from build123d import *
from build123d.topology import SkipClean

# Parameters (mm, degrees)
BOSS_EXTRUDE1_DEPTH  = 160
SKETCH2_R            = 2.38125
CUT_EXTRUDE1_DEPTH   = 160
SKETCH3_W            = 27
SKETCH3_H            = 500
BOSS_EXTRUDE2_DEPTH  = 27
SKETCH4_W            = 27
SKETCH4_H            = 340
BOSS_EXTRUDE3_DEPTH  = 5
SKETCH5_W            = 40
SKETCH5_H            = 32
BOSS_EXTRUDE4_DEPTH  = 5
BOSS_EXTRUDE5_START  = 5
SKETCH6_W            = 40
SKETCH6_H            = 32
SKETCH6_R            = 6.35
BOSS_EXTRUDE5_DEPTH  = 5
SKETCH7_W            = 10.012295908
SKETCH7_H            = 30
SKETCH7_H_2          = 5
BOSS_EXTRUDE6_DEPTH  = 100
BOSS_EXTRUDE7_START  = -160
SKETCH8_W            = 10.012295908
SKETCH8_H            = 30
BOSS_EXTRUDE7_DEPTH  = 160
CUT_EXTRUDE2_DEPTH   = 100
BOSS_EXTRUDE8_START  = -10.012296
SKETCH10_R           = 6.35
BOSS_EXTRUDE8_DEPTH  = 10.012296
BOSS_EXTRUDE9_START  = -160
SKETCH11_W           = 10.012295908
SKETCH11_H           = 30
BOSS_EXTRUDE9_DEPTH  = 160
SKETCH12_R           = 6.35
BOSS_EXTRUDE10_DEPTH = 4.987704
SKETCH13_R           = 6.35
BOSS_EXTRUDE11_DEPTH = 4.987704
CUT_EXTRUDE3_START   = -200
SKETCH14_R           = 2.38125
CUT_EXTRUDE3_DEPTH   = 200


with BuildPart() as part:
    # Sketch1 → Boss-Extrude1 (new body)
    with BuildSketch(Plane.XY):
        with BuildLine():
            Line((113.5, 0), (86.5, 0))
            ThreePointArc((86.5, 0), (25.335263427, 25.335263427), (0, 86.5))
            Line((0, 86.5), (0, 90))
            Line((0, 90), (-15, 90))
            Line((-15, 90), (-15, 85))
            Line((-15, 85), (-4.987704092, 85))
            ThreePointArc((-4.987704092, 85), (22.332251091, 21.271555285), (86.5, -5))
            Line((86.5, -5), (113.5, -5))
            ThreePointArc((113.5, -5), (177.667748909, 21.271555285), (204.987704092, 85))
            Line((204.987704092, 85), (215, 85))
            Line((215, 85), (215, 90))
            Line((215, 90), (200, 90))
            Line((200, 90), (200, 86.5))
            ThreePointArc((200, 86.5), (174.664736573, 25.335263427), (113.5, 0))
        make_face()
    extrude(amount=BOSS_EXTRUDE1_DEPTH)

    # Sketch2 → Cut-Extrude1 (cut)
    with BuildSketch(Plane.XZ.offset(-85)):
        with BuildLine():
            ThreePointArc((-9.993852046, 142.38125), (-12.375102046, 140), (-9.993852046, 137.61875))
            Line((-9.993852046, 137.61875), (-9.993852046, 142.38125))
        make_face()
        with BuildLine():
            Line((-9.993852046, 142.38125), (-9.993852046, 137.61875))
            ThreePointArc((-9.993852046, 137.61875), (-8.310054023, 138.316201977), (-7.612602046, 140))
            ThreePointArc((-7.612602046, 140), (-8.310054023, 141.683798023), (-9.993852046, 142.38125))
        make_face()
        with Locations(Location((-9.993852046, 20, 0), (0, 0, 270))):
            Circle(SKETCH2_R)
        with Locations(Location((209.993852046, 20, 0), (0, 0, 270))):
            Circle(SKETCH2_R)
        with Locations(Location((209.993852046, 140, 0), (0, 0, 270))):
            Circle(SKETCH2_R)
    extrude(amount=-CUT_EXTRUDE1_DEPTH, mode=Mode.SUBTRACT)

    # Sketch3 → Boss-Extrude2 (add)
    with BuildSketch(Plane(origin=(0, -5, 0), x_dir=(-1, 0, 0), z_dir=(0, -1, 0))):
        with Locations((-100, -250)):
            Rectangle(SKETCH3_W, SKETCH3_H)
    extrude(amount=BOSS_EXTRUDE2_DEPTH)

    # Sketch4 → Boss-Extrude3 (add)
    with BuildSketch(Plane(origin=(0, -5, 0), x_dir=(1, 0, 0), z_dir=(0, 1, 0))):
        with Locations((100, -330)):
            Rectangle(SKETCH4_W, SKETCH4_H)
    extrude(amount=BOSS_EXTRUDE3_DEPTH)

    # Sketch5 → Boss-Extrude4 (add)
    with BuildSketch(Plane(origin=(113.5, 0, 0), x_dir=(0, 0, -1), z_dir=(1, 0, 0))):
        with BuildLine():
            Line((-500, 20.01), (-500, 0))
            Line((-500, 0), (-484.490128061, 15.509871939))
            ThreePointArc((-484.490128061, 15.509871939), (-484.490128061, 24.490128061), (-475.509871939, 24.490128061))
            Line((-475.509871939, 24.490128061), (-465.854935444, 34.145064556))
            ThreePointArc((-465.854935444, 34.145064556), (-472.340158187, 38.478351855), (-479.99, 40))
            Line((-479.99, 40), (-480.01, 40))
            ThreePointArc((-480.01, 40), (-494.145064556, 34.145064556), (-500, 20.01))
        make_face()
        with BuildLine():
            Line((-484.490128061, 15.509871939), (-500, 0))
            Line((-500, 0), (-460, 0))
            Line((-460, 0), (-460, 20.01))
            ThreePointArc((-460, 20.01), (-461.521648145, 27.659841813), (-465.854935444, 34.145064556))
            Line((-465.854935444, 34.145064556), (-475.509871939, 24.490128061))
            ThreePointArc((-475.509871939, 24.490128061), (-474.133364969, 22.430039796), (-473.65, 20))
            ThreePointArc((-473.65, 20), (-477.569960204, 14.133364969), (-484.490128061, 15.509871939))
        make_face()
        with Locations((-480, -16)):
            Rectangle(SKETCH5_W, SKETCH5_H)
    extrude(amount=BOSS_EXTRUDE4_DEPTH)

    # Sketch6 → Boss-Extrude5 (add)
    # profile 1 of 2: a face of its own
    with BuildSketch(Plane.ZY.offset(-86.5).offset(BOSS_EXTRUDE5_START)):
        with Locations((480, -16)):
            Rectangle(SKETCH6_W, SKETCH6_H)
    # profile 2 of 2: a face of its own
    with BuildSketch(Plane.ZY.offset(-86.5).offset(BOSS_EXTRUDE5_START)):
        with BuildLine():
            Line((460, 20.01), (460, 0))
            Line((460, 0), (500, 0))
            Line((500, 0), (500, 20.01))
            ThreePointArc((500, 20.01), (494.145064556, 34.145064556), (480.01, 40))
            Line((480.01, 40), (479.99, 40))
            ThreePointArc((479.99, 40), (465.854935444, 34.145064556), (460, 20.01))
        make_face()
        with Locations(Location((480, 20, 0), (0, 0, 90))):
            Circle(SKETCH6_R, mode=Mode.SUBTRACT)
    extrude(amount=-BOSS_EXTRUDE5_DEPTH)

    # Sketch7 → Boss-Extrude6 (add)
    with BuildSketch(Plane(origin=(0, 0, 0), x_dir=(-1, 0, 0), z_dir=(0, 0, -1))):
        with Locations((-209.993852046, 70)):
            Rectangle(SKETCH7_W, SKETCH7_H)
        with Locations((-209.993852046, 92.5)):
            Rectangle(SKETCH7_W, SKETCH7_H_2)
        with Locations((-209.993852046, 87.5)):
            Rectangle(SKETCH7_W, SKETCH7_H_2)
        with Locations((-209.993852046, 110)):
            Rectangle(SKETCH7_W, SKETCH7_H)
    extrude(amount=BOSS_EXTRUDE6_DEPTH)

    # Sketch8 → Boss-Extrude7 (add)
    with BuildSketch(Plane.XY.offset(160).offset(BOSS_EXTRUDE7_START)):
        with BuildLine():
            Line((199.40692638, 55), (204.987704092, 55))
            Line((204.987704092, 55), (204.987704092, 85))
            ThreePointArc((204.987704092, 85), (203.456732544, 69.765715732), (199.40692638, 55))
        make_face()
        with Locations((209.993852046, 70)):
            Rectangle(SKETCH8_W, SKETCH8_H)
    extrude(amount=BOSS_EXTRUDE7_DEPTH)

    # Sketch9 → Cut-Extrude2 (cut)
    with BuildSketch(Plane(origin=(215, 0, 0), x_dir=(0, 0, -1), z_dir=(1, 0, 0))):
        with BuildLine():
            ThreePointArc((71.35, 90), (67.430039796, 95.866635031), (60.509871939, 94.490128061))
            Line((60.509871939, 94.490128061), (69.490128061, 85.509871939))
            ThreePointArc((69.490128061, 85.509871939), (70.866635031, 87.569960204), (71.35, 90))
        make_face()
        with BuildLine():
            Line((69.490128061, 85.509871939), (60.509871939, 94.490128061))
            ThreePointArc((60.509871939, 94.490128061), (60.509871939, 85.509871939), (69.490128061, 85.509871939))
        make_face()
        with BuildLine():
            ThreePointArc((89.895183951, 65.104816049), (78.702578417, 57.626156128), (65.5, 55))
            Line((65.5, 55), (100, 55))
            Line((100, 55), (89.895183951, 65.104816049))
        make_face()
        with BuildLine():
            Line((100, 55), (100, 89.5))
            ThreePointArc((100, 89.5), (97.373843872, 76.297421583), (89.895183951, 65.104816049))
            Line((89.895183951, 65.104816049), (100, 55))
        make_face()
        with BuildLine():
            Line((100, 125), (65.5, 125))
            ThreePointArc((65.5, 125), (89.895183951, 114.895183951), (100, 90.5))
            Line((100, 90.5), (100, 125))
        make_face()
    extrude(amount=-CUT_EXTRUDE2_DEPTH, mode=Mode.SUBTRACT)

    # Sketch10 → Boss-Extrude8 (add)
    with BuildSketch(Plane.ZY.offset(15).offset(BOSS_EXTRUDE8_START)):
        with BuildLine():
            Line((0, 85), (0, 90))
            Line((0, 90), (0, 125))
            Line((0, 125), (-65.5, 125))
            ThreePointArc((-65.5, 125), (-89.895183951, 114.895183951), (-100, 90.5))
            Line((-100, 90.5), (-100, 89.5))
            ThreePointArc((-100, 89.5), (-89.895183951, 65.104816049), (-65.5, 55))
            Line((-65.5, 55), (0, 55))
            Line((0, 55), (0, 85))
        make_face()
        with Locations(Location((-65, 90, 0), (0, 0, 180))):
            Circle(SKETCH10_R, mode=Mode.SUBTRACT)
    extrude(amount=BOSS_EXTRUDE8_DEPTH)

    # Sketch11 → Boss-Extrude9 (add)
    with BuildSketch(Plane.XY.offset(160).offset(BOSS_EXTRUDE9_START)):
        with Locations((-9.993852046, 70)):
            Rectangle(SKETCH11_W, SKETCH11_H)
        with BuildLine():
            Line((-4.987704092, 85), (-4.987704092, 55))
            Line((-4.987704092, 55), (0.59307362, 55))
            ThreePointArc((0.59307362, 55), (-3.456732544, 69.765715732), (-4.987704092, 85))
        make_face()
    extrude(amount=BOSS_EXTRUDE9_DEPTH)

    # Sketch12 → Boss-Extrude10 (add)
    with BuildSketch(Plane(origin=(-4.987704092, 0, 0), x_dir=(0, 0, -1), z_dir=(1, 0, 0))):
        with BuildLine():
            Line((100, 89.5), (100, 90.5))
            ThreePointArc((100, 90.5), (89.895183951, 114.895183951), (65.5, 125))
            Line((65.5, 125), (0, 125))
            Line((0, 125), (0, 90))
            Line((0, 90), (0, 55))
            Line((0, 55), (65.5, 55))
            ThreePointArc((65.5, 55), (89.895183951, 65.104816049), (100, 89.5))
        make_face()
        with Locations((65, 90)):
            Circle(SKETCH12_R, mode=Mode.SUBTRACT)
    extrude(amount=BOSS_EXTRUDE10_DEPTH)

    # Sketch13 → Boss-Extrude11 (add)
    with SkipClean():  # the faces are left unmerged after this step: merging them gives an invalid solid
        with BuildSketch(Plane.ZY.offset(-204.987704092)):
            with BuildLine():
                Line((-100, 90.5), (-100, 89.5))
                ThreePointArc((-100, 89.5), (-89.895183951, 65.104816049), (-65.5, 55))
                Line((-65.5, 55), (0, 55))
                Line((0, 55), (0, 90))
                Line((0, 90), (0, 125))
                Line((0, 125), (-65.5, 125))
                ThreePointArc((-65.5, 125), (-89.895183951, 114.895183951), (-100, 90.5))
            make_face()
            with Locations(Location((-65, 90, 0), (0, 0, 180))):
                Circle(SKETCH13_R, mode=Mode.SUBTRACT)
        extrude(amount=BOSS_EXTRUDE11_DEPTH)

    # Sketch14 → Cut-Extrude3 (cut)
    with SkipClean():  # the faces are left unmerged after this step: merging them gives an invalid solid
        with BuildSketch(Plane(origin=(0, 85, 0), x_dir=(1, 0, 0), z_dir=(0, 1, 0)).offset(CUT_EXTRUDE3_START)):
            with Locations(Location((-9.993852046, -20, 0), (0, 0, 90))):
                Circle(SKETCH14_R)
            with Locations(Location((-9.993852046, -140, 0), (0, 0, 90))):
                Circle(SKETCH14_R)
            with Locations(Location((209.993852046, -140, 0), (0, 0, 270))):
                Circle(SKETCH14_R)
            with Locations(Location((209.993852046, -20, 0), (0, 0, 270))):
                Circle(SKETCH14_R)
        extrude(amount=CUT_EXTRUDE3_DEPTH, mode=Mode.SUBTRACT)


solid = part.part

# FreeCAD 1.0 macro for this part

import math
import FreeCAD as App
import Part
import Sketcher
from FreeCAD import Vector
Q = App.Units.Quantity

doc = App.newDocument("Part")
params = doc.addObject("Spreadsheet::Sheet", "Params")
for row, (alias, value) in enumerate([
    ("sketch1_radius", "86.5 mm"),
    ("sketch1_radius2", "91.5 mm"),
    ("sketch1_width", "27 mm"),
    ("sketch1_width2", "15 mm"),
    ("sketch1_height", "5 mm"),
    ("pad1_length", "160 mm"),
    ("pocket1_length", "160 mm"),
    ("sketch3_width", "27 mm"),
    ("sketch3_height", "500 mm"),
    ("pad2_length", "27 mm"),
    ("sketch4_width", "27 mm"),
    ("sketch4_height", "340 mm"),
    ("pad3_length", "5 mm"),
    ("sketch5_height", "40 mm"),
    ("sketch5_radius", "19.99 mm"),
    ("sketch5_radius2", "6.35 mm"),
    ("pad4_length", "5 mm"),
    ("sketch6_diameter", "12.7 mm"),
    ("sketch6_height", "40 mm"),
    ("sketch6_radius", "19.99 mm"),
    ("sketch6_height2", "0.02 mm"),
    ("pad5_length", "5 mm"),
    ("sketch7_height", "70 mm"),
    ("pad6_length", "100 mm"),
    ("sketch8_radius", "91.5 mm"),
    ("sketch8_height", "30 mm"),
    ("pad7_length", "160 mm"),
    ("sketch9_radius", "34.5 mm"),
    ("sketch9_radius2", "6.35 mm"),
    ("pocket2_length", "100 mm"),
    ("sketch10_diameter", "12.7 mm"),
    ("sketch10_radius", "34.5 mm"),
    ("sketch10_width", "1 mm"),
    ("sketch10_height", "65.5 mm"),
    ("pad8_length", "10.012296 mm"),
    ("sketch11_radius", "91.5 mm"),
    ("sketch11_height", "30 mm"),
    ("pad9_length", "160 mm"),
    ("sketch12_diameter", "12.7 mm"),
    ("sketch12_radius", "34.5 mm"),
    ("sketch12_width", "1 mm"),
    ("sketch12_height", "65.5 mm"),
    ("pad10_length", "4.987704 mm"),
    ("sketch13_diameter", "12.7 mm"),
    ("sketch13_radius", "34.5 mm"),
    ("sketch13_width", "1 mm"),
    ("sketch13_height", "65.5 mm"),
    ("pad11_length", "4.987704 mm"),
    ("pocket3_length", "200 mm"),
], start=1):
    params.set(f"A{row}", alias)
    params.set(f"B{row}", "=" + value)
    params.setAlias(f"B{row}", alias)

body = doc.addObject("PartDesign::Body", "Body")

# Sketch on XY plane
sketch1 = body.newObject("Sketcher::SketchObject", "Sketch")
sketch1.AttachmentSupport = (doc.getObject("XY_Plane"), [""])
sketch1.MapMode = "FlatFace"
sketch1.addGeometry(Part.LineSegment(Vector(113.5, 0, 0), Vector(86.5, 0, 0)), False)
sketch1.addGeometry(Part.ArcOfCircle(Part.Circle(Vector(86.5, 86.5, 0), Vector(0, 0, 1), 86.5), math.radians(180), math.radians(270)), False)
sketch1.addGeometry(Part.LineSegment(Vector(0, 86.5, 0), Vector(0, 90, 0)), False)
sketch1.addGeometry(Part.LineSegment(Vector(0, 90, 0), Vector(-15, 90, 0)), False)
sketch1.addGeometry(Part.LineSegment(Vector(-15, 90, 0), Vector(-15, 85, 0)), False)
sketch1.addGeometry(Part.LineSegment(Vector(-15, 85, 0), Vector(-4.987704, 85, 0)), False)
sketch1.addGeometry(Part.ArcOfCircle(Part.Circle(Vector(86.5, 86.5, 0), Vector(0, 0, 1), 91.5), math.radians(-179.060683), math.radians(-90)), False)
sketch1.addGeometry(Part.LineSegment(Vector(86.5, -5, 0), Vector(113.5, -5, 0)), False)
sketch1.addGeometry(Part.ArcOfCircle(Part.Circle(Vector(113.5, 86.5, 0), Vector(0, 0, 1), 91.5), math.radians(-90), math.radians(-0.939317)), False)
sketch1.addGeometry(Part.LineSegment(Vector(204.987704, 85, 0), Vector(215, 85, 0)), False)
sketch1.addGeometry(Part.LineSegment(Vector(215, 85, 0), Vector(215, 90, 0)), False)
sketch1.addGeometry(Part.LineSegment(Vector(215, 90, 0), Vector(200, 90, 0)), False)
sketch1.addGeometry(Part.LineSegment(Vector(200, 90, 0), Vector(200, 86.5, 0)), False)
sketch1.addGeometry(Part.ArcOfCircle(Part.Circle(Vector(113.5, 86.5, 0), Vector(0, 0, 1), 86.5), math.radians(-90), math.radians(0)), False)
sketch1.addConstraint(Sketcher.Constraint("Tangent", 0, 2, 1, 2))
sketch1.addConstraint(Sketcher.Constraint("Tangent", 1, 1, 2, 1))
sketch1.addConstraint(Sketcher.Constraint("Coincident", 2, 2, 3, 1))
sketch1.addConstraint(Sketcher.Constraint("Coincident", 3, 2, 4, 1))
sketch1.addConstraint(Sketcher.Constraint("Coincident", 4, 2, 5, 1))
sketch1.addConstraint(Sketcher.Constraint("Coincident", 5, 2, 6, 1))
sketch1.addConstraint(Sketcher.Constraint("Tangent", 6, 2, 7, 1))
sketch1.addConstraint(Sketcher.Constraint("Tangent", 7, 2, 8, 1))
sketch1.addConstraint(Sketcher.Constraint("Coincident", 8, 2, 9, 1))
sketch1.addConstraint(Sketcher.Constraint("Coincident", 9, 2, 10, 1))
sketch1.addConstraint(Sketcher.Constraint("Coincident", 10, 2, 11, 1))
sketch1.addConstraint(Sketcher.Constraint("Coincident", 11, 2, 12, 1))
sketch1.addConstraint(Sketcher.Constraint("Tangent", 12, 2, 13, 2))
sketch1.addConstraint(Sketcher.Constraint("Tangent", 13, 1, 0, 1))
sketch1.addConstraint(Sketcher.Constraint("Horizontal", 0))
sketch1.addConstraint(Sketcher.Constraint("Vertical", 2))
sketch1.addConstraint(Sketcher.Constraint("Horizontal", 3))
sketch1.addConstraint(Sketcher.Constraint("Vertical", 4))
sketch1.addConstraint(Sketcher.Constraint("Horizontal", 5))
sketch1.addConstraint(Sketcher.Constraint("Horizontal", 7))
sketch1.addConstraint(Sketcher.Constraint("Horizontal", 9))
sketch1.addConstraint(Sketcher.Constraint("Vertical", 10))
sketch1.addConstraint(Sketcher.Constraint("Horizontal", 11))
sketch1.addConstraint(Sketcher.Constraint("Vertical", 12))
sketch1.addConstraint(Sketcher.Constraint("Coincident", 6, 3, 1, 3))
sketch1.addConstraint(Sketcher.Constraint("Coincident", 13, 3, 8, 3))
sketch1.addConstraint(Sketcher.Constraint("Equal", 6, 8))
sketch1.addConstraint(Sketcher.Constraint("PointOnObject", 0, 2, -1))
sketch1.addConstraint(Sketcher.Constraint("PointOnObject", 1, 1, -2))
sketch1.addConstraint(Sketcher.Constraint("Horizontal", 5, 2, 8, 2))
sketch1.addConstraint(Sketcher.Constraint("Horizontal", 3, 2, 10, 2))
sketch1.addConstraint(Sketcher.Constraint("Equal", 5, 9))
sketch1.addConstraint(Sketcher.Constraint("Radius", 1, Q("86.5 mm")))
sketch1.addConstraint(Sketcher.Constraint("Radius", 6, Q("91.5 mm")))
sketch1.addConstraint(Sketcher.Constraint("DistanceX", 0, 2, 0, 1, Q("27 mm")))
sketch1.addConstraint(Sketcher.Constraint("DistanceX", 3, 2, 3, 1, Q("15 mm")))
sketch1.addConstraint(Sketcher.Constraint("DistanceY", 4, 2, 4, 1, Q("5 mm")))
sketch1.addConstraint(Sketcher.Constraint("DistanceY", 2, 1, 2, 2, Q("3.5 mm")))
sketch1.setExpression("Constraints[32]", "Params.sketch1_radius")
sketch1.setExpression("Constraints[33]", "Params.sketch1_radius2")
sketch1.setExpression("Constraints[34]", "Params.sketch1_width")
sketch1.setExpression("Constraints[35]", "Params.sketch1_width2")
sketch1.setExpression("Constraints[36]", "Params.sketch1_height")
pad1 = body.newObject("PartDesign::Pad", "Pad")
pad1.Profile = sketch1
pad1.setExpression("Length", "Params.pad1_length")

# Sketch on XZ plane
sketch2 = body.newObject("Sketcher::SketchObject", "Sketch001")
sketch2.AttachmentSupport = (doc.getObject("XZ_Plane"), [""])
sketch2.MapMode = "FlatFace"
sketch2.AttachmentOffset = App.Placement(Vector(0, 0, -85), App.Rotation())
sketch2.addGeometry(Part.ArcOfCircle(Part.Circle(Vector(-9.993852, 140, 0), Vector(0, 0, 1), 2.38125), math.radians(90), math.radians(270)), False)
sketch2.addGeometry(Part.ArcOfCircle(Part.Circle(Vector(-9.993852, 140, 0), Vector(0, 0, 1), 2.38125), math.radians(-90), math.radians(0)), False)
sketch2.addGeometry(Part.ArcOfCircle(Part.Circle(Vector(-9.993852, 140, 0), Vector(0, 0, 1), 2.38125), math.radians(0), math.radians(90)), False)
sketch2.addGeometry(Part.Circle(Vector(-9.993852, 20, 0), Vector(0, 0, 1), 2.38125), False)
sketch2.addGeometry(Part.Circle(Vector(209.993852, 20, 0), Vector(0, 0, 1), 2.38125), False)
sketch2.addGeometry(Part.Circle(Vector(209.993852, 140, 0), Vector(0, 0, 1), 2.38125), False)
sketch2.addConstraint(Sketcher.Constraint("Tangent", 0, 2, 1, 1))
sketch2.addConstraint(Sketcher.Constraint("Tangent", 1, 2, 2, 1))
sketch2.addConstraint(Sketcher.Constraint("Tangent", 2, 2, 0, 1))
sketch2.addConstraint(Sketcher.Constraint("Equal", 2, 3))
sketch2.addConstraint(Sketcher.Constraint("Equal", 3, 4))
sketch2.addConstraint(Sketcher.Constraint("Equal", 4, 5))
sketch2.addConstraint(Sketcher.Constraint("Horizontal", 3, 3, 4, 3))
sketch2.addConstraint(Sketcher.Constraint("Horizontal", 2, 3, 5, 3))
sketch2.addConstraint(Sketcher.Constraint("Horizontal", 5, 3, 1, 2))
sketch2.addConstraint(Sketcher.Constraint("Vertical", 2, 3, 3, 3))
sketch2.addConstraint(Sketcher.Constraint("Vertical", 4, 3, 5, 3))
sketch2.addConstraint(Sketcher.Constraint("Vertical", 3, 3, 0, 2))
sketch2.addConstraint(Sketcher.Constraint("Vertical", 0, 2, 2, 2))
sketch2.addConstraint(Sketcher.Constraint("DistanceY", -1, 1, 0, 3, Q("140 mm")))
sketch2.addConstraint(Sketcher.Constraint("DistanceY", -1, 1, 3, 3, Q("20 mm")))
sketch2.addConstraint(Sketcher.Constraint("Diameter", 3, Q("4.7625 mm")))
sketch2.addConstraint(Sketcher.Constraint("DistanceX", 0, 3, -1, 1, Q("9.993852 mm")))
sketch2.addConstraint(Sketcher.Constraint("DistanceX", -1, 1, 4, 3, Q("209.993852 mm")))
pocket1 = body.newObject("PartDesign::Pocket", "Pocket")
pocket1.Profile = sketch2
pocket1.setExpression("Length", "Params.pocket1_length")

# Sketch on XZ plane
sketch3 = body.newObject("Sketcher::SketchObject", "Sketch002")
sketch3.AttachmentSupport = (doc.getObject("XZ_Plane"), [""])
sketch3.MapMode = "FlatFace"
sketch3.AttachmentOffset = App.Placement(Vector(0, 0, 5), App.Rotation())
sketch3.addGeometry(Part.LineSegment(Vector(113.5, 0, 0), Vector(113.5, 500, 0)), False)
sketch3.addGeometry(Part.LineSegment(Vector(113.5, 500, 0), Vector(86.5, 500, 0)), False)
sketch3.addGeometry(Part.LineSegment(Vector(86.5, 500, 0), Vector(86.5, 0, 0)), False)
sketch3.addGeometry(Part.LineSegment(Vector(86.5, 0, 0), Vector(113.5, 0, 0)), False)
sketch3.addConstraint(Sketcher.Constraint("Coincident", 0, 2, 1, 1))
sketch3.addConstraint(Sketcher.Constraint("Coincident", 1, 2, 2, 1))
sketch3.addConstraint(Sketcher.Constraint("Coincident", 2, 2, 3, 1))
sketch3.addConstraint(Sketcher.Constraint("Coincident", 3, 2, 0, 1))
sketch3.addConstraint(Sketcher.Constraint("Vertical", 0))
sketch3.addConstraint(Sketcher.Constraint("Horizontal", 1))
sketch3.addConstraint(Sketcher.Constraint("Vertical", 2))
sketch3.addConstraint(Sketcher.Constraint("Horizontal", 3))
sketch3.addConstraint(Sketcher.Constraint("PointOnObject", 2, 2, -1))
sketch3.addConstraint(Sketcher.Constraint("DistanceX", 1, 2, 1, 1, Q("27 mm")))
sketch3.addConstraint(Sketcher.Constraint("DistanceY", 0, 1, 0, 2, Q("500 mm")))
sketch3.addConstraint(Sketcher.Constraint("DistanceX", -1, 1, 0, 2, Q("113.5 mm")))
sketch3.setExpression("Constraints[9]", "Params.sketch3_width")
sketch3.setExpression("Constraints[10]", "Params.sketch3_height")
pad2 = body.newObject("PartDesign::Pad", "Pad001")
pad2.Profile = sketch3
pad2.setExpression("Length", "Params.pad2_length")

# Sketch on XZ plane
sketch4 = body.newObject("Sketcher::SketchObject", "Sketch003")
sketch4.AttachmentSupport = (doc.getObject("XZ_Plane"), [""])
sketch4.MapMode = "FlatFace"
sketch4.AttachmentOffset = App.Placement(Vector(0, 0, 5), App.Rotation())
sketch4.addGeometry(Part.LineSegment(Vector(86.5, 160, 0), Vector(86.5, 500, 0)), False)
sketch4.addGeometry(Part.LineSegment(Vector(86.5, 500, 0), Vector(113.5, 500, 0)), False)
sketch4.addGeometry(Part.LineSegment(Vector(113.5, 500, 0), Vector(113.5, 160, 0)), False)
sketch4.addGeometry(Part.LineSegment(Vector(113.5, 160, 0), Vector(86.5, 160, 0)), False)
sketch4.addConstraint(Sketcher.Constraint("Coincident", 0, 2, 1, 1))
sketch4.addConstraint(Sketcher.Constraint("Coincident", 1, 2, 2, 1))
sketch4.addConstraint(Sketcher.Constraint("Coincident", 2, 2, 3, 1))
sketch4.addConstraint(Sketcher.Constraint("Coincident", 3, 2, 0, 1))
sketch4.addConstraint(Sketcher.Constraint("Vertical", 0))
sketch4.addConstraint(Sketcher.Constraint("Horizontal", 1))
sketch4.addConstraint(Sketcher.Constraint("Vertical", 2))
sketch4.addConstraint(Sketcher.Constraint("Horizontal", 3))
sketch4.addConstraint(Sketcher.Constraint("DistanceX", 1, 1, 1, 2, Q("27 mm")))
sketch4.addConstraint(Sketcher.Constraint("DistanceY", 0, 1, 0, 2, Q("340 mm")))
sketch4.addConstraint(Sketcher.Constraint("DistanceY", -1, 1, 0, 2, Q("500 mm")))
sketch4.addConstraint(Sketcher.Constraint("DistanceX", -1, 1, 0, 2, Q("86.5 mm")))
sketch4.setExpression("Constraints[8]", "Params.sketch4_width")
sketch4.setExpression("Constraints[9]", "Params.sketch4_height")
pad3 = body.newObject("PartDesign::Pad", "Pad002")
pad3.Profile = sketch4
pad3.setExpression("Length", "Params.pad3_length")
pad3.Reversed = True

# Sketch on YZ plane
sketch5 = body.newObject("Sketcher::SketchObject", "Sketch004")
sketch5.AttachmentSupport = (doc.getObject("YZ_Plane"), [""])
sketch5.MapMode = "FlatFace"
sketch5.AttachmentOffset = App.Placement(Vector(0, 0, 113.5), App.Rotation())
sketch5.addGeometry(Part.LineSegment(Vector(20.01, 500, 0), Vector(-32, 500, 0)), False)
sketch5.addGeometry(Part.LineSegment(Vector(-32, 500, 0), Vector(-32, 460, 0)), False)
sketch5.addGeometry(Part.LineSegment(Vector(-32, 460, 0), Vector(20.01, 460, 0)), False)
sketch5.addGeometry(Part.ArcOfCircle(Part.Circle(Vector(20.01, 479.99, 0), Vector(0, 0, 1), 19.99), math.radians(-90), math.radians(-45)), False)
sketch5.addGeometry(Part.ArcOfCircle(Part.Circle(Vector(20.01, 479.99, 0), Vector(0, 0, 1), 19.99), math.radians(-45), math.radians(0)), False)
sketch5.addGeometry(Part.LineSegment(Vector(40, 479.99, 0), Vector(40, 480.01, 0)), False)
sketch5.addGeometry(Part.ArcOfCircle(Part.Circle(Vector(20.01, 480.01, 0), Vector(0, 0, 1), 19.99), math.radians(0), math.radians(90)), False)
sketch5.addGeometry(Part.ArcOfCircle(Part.Circle(Vector(20, 480, 0), Vector(0, 0, 1), 6.35), math.radians(-45), math.radians(135)), False)
sketch5.addGeometry(Part.ArcOfCircle(Part.Circle(Vector(20, 480, 0), Vector(0, 0, 1), 6.35), math.radians(-90), math.radians(-45)), False)
sketch5.addGeometry(Part.ArcOfCircle(Part.Circle(Vector(20, 480, 0), Vector(0, 0, 1), 6.35), math.radians(135), math.radians(270)), False)
sketch5.addConstraint(Sketcher.Constraint("Coincident", 0, 2, 1, 1))
sketch5.addConstraint(Sketcher.Constraint("Coincident", 1, 2, 2, 1))
sketch5.addConstraint(Sketcher.Constraint("Tangent", 2, 2, 3, 1))
sketch5.addConstraint(Sketcher.Constraint("Tangent", 3, 2, 4, 1))
sketch5.addConstraint(Sketcher.Constraint("Tangent", 4, 2, 5, 1))
sketch5.addConstraint(Sketcher.Constraint("Coincident", 5, 2, 6, 1))
sketch5.addConstraint(Sketcher.Constraint("Tangent", 6, 2, 0, 1))
sketch5.addConstraint(Sketcher.Constraint("Tangent", 7, 1, 8, 2))
sketch5.addConstraint(Sketcher.Constraint("Tangent", 8, 1, 9, 2))
sketch5.addConstraint(Sketcher.Constraint("Tangent", 9, 1, 7, 2))
sketch5.addConstraint(Sketcher.Constraint("Horizontal", 0))
sketch5.addConstraint(Sketcher.Constraint("Vertical", 1))
sketch5.addConstraint(Sketcher.Constraint("Horizontal", 2))
sketch5.addConstraint(Sketcher.Constraint("Equal", 3, 4))
sketch5.addConstraint(Sketcher.Constraint("Equal", 4, 6))
sketch5.addConstraint(Sketcher.Constraint("Horizontal", 3, 3, 4, 2))
sketch5.addConstraint(Sketcher.Constraint("Horizontal", 6, 3, 5, 2))
sketch5.addConstraint(Sketcher.Constraint("Vertical", 9, 3, 8, 1))
sketch5.addConstraint(Sketcher.Constraint("DistanceY", 1, 2, 1, 1, Q("40 mm")))
sketch5.addConstraint(Sketcher.Constraint("Radius", 3, Q("19.99 mm")))
sketch5.addConstraint(Sketcher.Constraint("Radius", 7, Q("6.35 mm")))
sketch5.addConstraint(Sketcher.Constraint("DistanceX", -1, 1, 7, 3, Q("20 mm")))
sketch5.addConstraint(Sketcher.Constraint("DistanceY", -1, 1, 7, 3, Q("480 mm")))
sketch5.addConstraint(Sketcher.Constraint("DistanceX", 0, 2, -1, 1, Q("32 mm")))
sketch5.addConstraint(Sketcher.Constraint("DistanceY", -1, 1, 0, 2, Q("500 mm")))
sketch5.addConstraint(Sketcher.Constraint("DistanceX", -1, 1, 4, 2, Q("40 mm")))
sketch5.addConstraint(Sketcher.Constraint("DistanceX", -1, 1, 7, 1, Q("24.490128 mm")))
sketch5.addConstraint(Sketcher.Constraint("DistanceX", -1, 1, 9, 1, Q("15.509872 mm")))
sketch5.addConstraint(Sketcher.Constraint("DistanceX", -1, 1, 3, 2, Q("34.145065 mm")))
sketch5.setExpression("Constraints[18]", "Params.sketch5_height")
sketch5.setExpression("Constraints[19]", "Params.sketch5_radius")
sketch5.setExpression("Constraints[20]", "Params.sketch5_radius2")
pad4 = body.newObject("PartDesign::Pad", "Pad003")
pad4.Profile = sketch5
pad4.setExpression("Length", "Params.pad4_length")

# Sketch on YZ plane
sketch6 = body.newObject("Sketcher::SketchObject", "Sketch005")
sketch6.AttachmentSupport = (doc.getObject("YZ_Plane"), [""])
sketch6.MapMode = "FlatFace"
sketch6.AttachmentOffset = App.Placement(Vector(0, 0, 81.5), App.Rotation())
sketch6.addGeometry(Part.LineSegment(Vector(-32, 460, 0), Vector(-32, 500, 0)), False)
sketch6.addGeometry(Part.LineSegment(Vector(-32, 500, 0), Vector(20.01, 500, 0)), False)
sketch6.addGeometry(Part.ArcOfCircle(Part.Circle(Vector(20.01, 480.01, 0), Vector(0, 0, 1), 19.99), math.radians(0), math.radians(90)), False)
sketch6.addGeometry(Part.LineSegment(Vector(40, 480.01, 0), Vector(40, 479.99, 0)), False)
sketch6.addGeometry(Part.ArcOfCircle(Part.Circle(Vector(20.01, 479.99, 0), Vector(0, 0, 1), 19.99), math.radians(-90), math.radians(0)), False)
sketch6.addGeometry(Part.LineSegment(Vector(20.01, 460, 0), Vector(-32, 460, 0)), False)
sketch6.addGeometry(Part.Circle(Vector(20, 480, 0), Vector(0, 0, 1), 6.35), False)
sketch6.addConstraint(Sketcher.Constraint("Coincident", 0, 2, 1, 1))
sketch6.addConstraint(Sketcher.Constraint("Tangent", 1, 2, 2, 2))
sketch6.addConstraint(Sketcher.Constraint("Tangent", 2, 1, 3, 1))
sketch6.addConstraint(Sketcher.Constraint("Coincident", 3, 2, 4, 2))
sketch6.addConstraint(Sketcher.Constraint("Tangent", 4, 1, 5, 1))
sketch6.addConstraint(Sketcher.Constraint("Coincident", 5, 2, 0, 1))
sketch6.addConstraint(Sketcher.Constraint("Vertical", 0))
sketch6.addConstraint(Sketcher.Constraint("Horizontal", 1))
sketch6.addConstraint(Sketcher.Constraint("Horizontal", 5))
sketch6.addConstraint(Sketcher.Constraint("Equal", 2, 4))
sketch6.addConstraint(Sketcher.Constraint("Horizontal", 4, 3, 3, 2))
sketch6.addConstraint(Sketcher.Constraint("Diameter", 6, Q("12.7 mm")))
sketch6.addConstraint(Sketcher.Constraint("DistanceY", 0, 1, 0, 2, Q("40 mm")))
sketch6.addConstraint(Sketcher.Constraint("Radius", 2, Q("19.99 mm")))
sketch6.addConstraint(Sketcher.Constraint("DistanceX", -1, 1, 6, 3, Q("20 mm")))
sketch6.addConstraint(Sketcher.Constraint("DistanceY", -1, 1, 6, 3, Q("480 mm")))
sketch6.addConstraint(Sketcher.Constraint("DistanceX", 0, 2, -1, 1, Q("32 mm")))
sketch6.addConstraint(Sketcher.Constraint("DistanceY", -1, 1, 0, 2, Q("500 mm")))
sketch6.addConstraint(Sketcher.Constraint("DistanceX", -1, 1, 2, 1, Q("40 mm")))
sketch6.addConstraint(Sketcher.Constraint("DistanceY", 3, 2, 3, 1, Q("0.02 mm")))
sketch6.setExpression("Constraints[11]", "Params.sketch6_diameter")
sketch6.setExpression("Constraints[12]", "Params.sketch6_height")
sketch6.setExpression("Constraints[13]", "Params.sketch6_radius")
sketch6.setExpression("Constraints[19]", "Params.sketch6_height2")
pad5 = body.newObject("PartDesign::Pad", "Pad004")
pad5.Profile = sketch6
pad5.setExpression("Length", "Params.pad5_length")

# Sketch on XY plane
sketch7 = body.newObject("Sketcher::SketchObject", "Sketch006")
sketch7.AttachmentSupport = (doc.getObject("XY_Plane"), [""])
sketch7.MapMode = "FlatFace"
sketch7.addGeometry(Part.LineSegment(Vector(215, 55, 0), Vector(204.987704, 55, 0)), False)
sketch7.addGeometry(Part.LineSegment(Vector(204.987704, 55, 0), Vector(204.987704, 125, 0)), False)
sketch7.addGeometry(Part.LineSegment(Vector(204.987704, 125, 0), Vector(215, 125, 0)), False)
sketch7.addGeometry(Part.LineSegment(Vector(215, 125, 0), Vector(215, 55, 0)), False)
sketch7.addConstraint(Sketcher.Constraint("Coincident", 0, 2, 1, 1))
sketch7.addConstraint(Sketcher.Constraint("Coincident", 1, 2, 2, 1))
sketch7.addConstraint(Sketcher.Constraint("Coincident", 2, 2, 3, 1))
sketch7.addConstraint(Sketcher.Constraint("Coincident", 3, 2, 0, 1))
sketch7.addConstraint(Sketcher.Constraint("Horizontal", 0))
sketch7.addConstraint(Sketcher.Constraint("Vertical", 1))
sketch7.addConstraint(Sketcher.Constraint("Horizontal", 2))
sketch7.addConstraint(Sketcher.Constraint("Vertical", 3))
sketch7.addConstraint(Sketcher.Constraint("DistanceY", 1, 1, 1, 2, Q("70 mm")))
sketch7.addConstraint(Sketcher.Constraint("DistanceY", -1, 1, 0, 2, Q("55 mm")))
sketch7.addConstraint(Sketcher.Constraint("DistanceX", -1, 1, 2, 2, Q("215 mm")))
sketch7.addConstraint(Sketcher.Constraint("DistanceX", 0, 2, 0, 1, Q("10.012296 mm")))
sketch7.setExpression("Constraints[8]", "Params.sketch7_height")
pad6 = body.newObject("PartDesign::Pad", "Pad005")
pad6.Profile = sketch7
pad6.setExpression("Length", "Params.pad6_length")
pad6.Reversed = True

# Sketch on XY plane
sketch8 = body.newObject("Sketcher::SketchObject", "Sketch007")
sketch8.AttachmentSupport = (doc.getObject("XY_Plane"), [""])
sketch8.MapMode = "FlatFace"
sketch8.addGeometry(Part.LineSegment(Vector(199.406926, 55, 0), Vector(215, 55, 0)), False)
sketch8.addGeometry(Part.LineSegment(Vector(215, 55, 0), Vector(215, 85, 0)), False)
sketch8.addGeometry(Part.LineSegment(Vector(215, 85, 0), Vector(204.987704, 85, 0)), False)
sketch8.addGeometry(Part.ArcOfCircle(Part.Circle(Vector(113.5, 86.5, 0), Vector(0, 0, 1), 91.5), math.radians(-20.13677), math.radians(-0.939317)), False)
sketch8.addConstraint(Sketcher.Constraint("Coincident", 0, 2, 1, 1))
sketch8.addConstraint(Sketcher.Constraint("Coincident", 1, 2, 2, 1))
sketch8.addConstraint(Sketcher.Constraint("Coincident", 2, 2, 3, 2))
sketch8.addConstraint(Sketcher.Constraint("Coincident", 3, 1, 0, 1))
sketch8.addConstraint(Sketcher.Constraint("Horizontal", 0))
sketch8.addConstraint(Sketcher.Constraint("Vertical", 1))
sketch8.addConstraint(Sketcher.Constraint("Horizontal", 2))
sketch8.addConstraint(Sketcher.Constraint("Radius", 3, Q("91.5 mm")))
sketch8.addConstraint(Sketcher.Constraint("DistanceY", 1, 1, 1, 2, Q("30 mm")))
sketch8.addConstraint(Sketcher.Constraint("DistanceX", -1, 1, 0, 2, Q("215 mm")))
sketch8.addConstraint(Sketcher.Constraint("DistanceY", -1, 1, 0, 2, Q("55 mm")))
sketch8.addConstraint(Sketcher.Constraint("DistanceX", -1, 1, 3, 3, Q("113.5 mm")))
sketch8.addConstraint(Sketcher.Constraint("DistanceY", -1, 1, 3, 3, Q("86.5 mm")))
sketch8.setExpression("Constraints[7]", "Params.sketch8_radius")
sketch8.setExpression("Constraints[8]", "Params.sketch8_height")
pad7 = body.newObject("PartDesign::Pad", "Pad006")
pad7.Profile = sketch8
pad7.setExpression("Length", "Params.pad7_length")

# Sketch on YZ plane
sketch9 = body.newObject("Sketcher::SketchObject", "Sketch008")
sketch9.AttachmentSupport = (doc.getObject("YZ_Plane"), [""])
sketch9.MapMode = "FlatFace"
sketch9.AttachmentOffset = App.Placement(Vector(0, 0, 215), App.Rotation())
sketch9.addGeometry(Part.ArcOfCircle(Part.Circle(Vector(90, -65, 0), Vector(0, 0, 1), 6.35), math.radians(-90), math.radians(45)), False)
sketch9.addGeometry(Part.ArcOfCircle(Part.Circle(Vector(90, -65, 0), Vector(0, 0, 1), 6.35), math.radians(45), math.radians(225)), False)
sketch9.addGeometry(Part.ArcOfCircle(Part.Circle(Vector(90, -65, 0), Vector(0, 0, 1), 6.35), math.radians(-135), math.radians(-90)), False)
sketch9.addGeometry(Part.ArcOfCircle(Part.Circle(Vector(89.5, -65.5, 0), Vector(0, 0, 1), 34.5), math.radians(180), math.radians(225)), False)
sketch9.addGeometry(Part.LineSegment(Vector(55, -65.5, 0), Vector(55, -100, 0)), False)
sketch9.addGeometry(Part.LineSegment(Vector(55, -100, 0), Vector(89.5, -100, 0)), False)
sketch9.addGeometry(Part.ArcOfCircle(Part.Circle(Vector(89.5, -65.5, 0), Vector(0, 0, 1), 34.5), math.radians(-135), math.radians(-90)), False)
sketch9.addGeometry(Part.LineSegment(Vector(125, -100, 0), Vector(125, -65.5, 0)), False)
sketch9.addGeometry(Part.ArcOfCircle(Part.Circle(Vector(90.5, -65.5, 0), Vector(0, 0, 1), 34.5), math.radians(-90), math.radians(0)), False)
sketch9.addGeometry(Part.LineSegment(Vector(90.5, -100, 0), Vector(125, -100, 0)), False)
sketch9.addConstraint(Sketcher.Constraint("Tangent", 0, 2, 1, 1))
sketch9.addConstraint(Sketcher.Constraint("Tangent", 1, 2, 2, 1))
sketch9.addConstraint(Sketcher.Constraint("Tangent", 2, 2, 0, 1))
sketch9.addConstraint(Sketcher.Constraint("Tangent", 3, 1, 4, 1))
sketch9.addConstraint(Sketcher.Constraint("Coincident", 4, 2, 5, 1))
sketch9.addConstraint(Sketcher.Constraint("Tangent", 5, 2, 6, 2))
sketch9.addConstraint(Sketcher.Constraint("Tangent", 6, 1, 3, 2))
sketch9.addConstraint(Sketcher.Constraint("Tangent", 7, 2, 8, 2))
sketch9.addConstraint(Sketcher.Constraint("Tangent", 8, 1, 9, 1))
sketch9.addConstraint(Sketcher.Constraint("Coincident", 9, 2, 7, 1))
sketch9.addConstraint(Sketcher.Constraint("Vertical", 4))
sketch9.addConstraint(Sketcher.Constraint("Horizontal", 5))
sketch9.addConstraint(Sketcher.Constraint("Vertical", 7))
sketch9.addConstraint(Sketcher.Constraint("Horizontal", 9))
sketch9.addConstraint(Sketcher.Constraint("Equal", 3, 6))
sketch9.addConstraint(Sketcher.Constraint("Equal", 6, 8))
sketch9.addConstraint(Sketcher.Constraint("Horizontal", 6, 3, 8, 3))
sketch9.addConstraint(Sketcher.Constraint("Vertical", 1, 3, 2, 2))
sketch9.addConstraint(Sketcher.Constraint("Radius", 3, Q("34.5 mm")))
sketch9.addConstraint(Sketcher.Constraint("Radius", 0, Q("6.35 mm")))
sketch9.addConstraint(Sketcher.Constraint("DistanceX", -1, 1, 0, 3, Q("90 mm")))
sketch9.addConstraint(Sketcher.Constraint("DistanceY", 0, 3, -1, 1, Q("65 mm")))
sketch9.addConstraint(Sketcher.Constraint("DistanceX", -1, 1, 3, 1, Q("55 mm")))
sketch9.addConstraint(Sketcher.Constraint("DistanceY", 4, 2, -1, 1, Q("100 mm")))
sketch9.addConstraint(Sketcher.Constraint("DistanceX", -1, 1, 7, 2, Q("125 mm")))
sketch9.addConstraint(Sketcher.Constraint("DistanceX", -1, 1, 0, 2, Q("94.490128 mm")))
sketch9.addConstraint(Sketcher.Constraint("DistanceX", -1, 1, 1, 2, Q("85.509872 mm")))
sketch9.addConstraint(Sketcher.Constraint("DistanceX", -1, 1, 6, 1, Q("65.104816 mm")))
sketch9.setExpression("Constraints[18]", "Params.sketch9_radius")
sketch9.setExpression("Constraints[19]", "Params.sketch9_radius2")
pocket2 = body.newObject("PartDesign::Pocket", "Pocket001")
pocket2.Profile = sketch9
pocket2.setExpression("Length", "Params.pocket2_length")

# Sketch on YZ plane
sketch10 = body.newObject("Sketcher::SketchObject", "Sketch009")
sketch10.AttachmentSupport = (doc.getObject("YZ_Plane"), [""])
sketch10.MapMode = "FlatFace"
sketch10.AttachmentOffset = App.Placement(Vector(0, 0, -4.987704), App.Rotation())
sketch10.addGeometry(Part.LineSegment(Vector(125, 0, 0), Vector(125, -65.5, 0)), False)
sketch10.addGeometry(Part.ArcOfCircle(Part.Circle(Vector(90.5, -65.5, 0), Vector(0, 0, 1), 34.5), math.radians(-90), math.radians(0)), False)
sketch10.addGeometry(Part.LineSegment(Vector(90.5, -100, 0), Vector(89.5, -100, 0)), False)
sketch10.addGeometry(Part.ArcOfCircle(Part.Circle(Vector(89.5, -65.5, 0), Vector(0, 0, 1), 34.5), math.radians(180), math.radians(270)), False)
sketch10.addGeometry(Part.LineSegment(Vector(55, -65.5, 0), Vector(55, 0, 0)), False)
sketch10.addGeometry(Part.LineSegment(Vector(55, 0, 0), Vector(125, 0, 0)), False)
sketch10.addGeometry(Part.Circle(Vector(90, -65, 0), Vector(0, 0, 1), 6.35), False)
sketch10.addConstraint(Sketcher.Constraint("Tangent", 0, 2, 1, 2))
sketch10.addConstraint(Sketcher.Constraint("Tangent", 1, 1, 2, 1))
sketch10.addConstraint(Sketcher.Constraint("Tangent", 2, 2, 3, 2))
sketch10.addConstraint(Sketcher.Constraint("Tangent", 3, 1, 4, 1))
sketch10.addConstraint(Sketcher.Constraint("Coincident", 4, 2, 5, 1))
sketch10.addConstraint(Sketcher.Constraint("Coincident", 5, 2, 0, 1))
sketch10.addConstraint(Sketcher.Constraint("Vertical", 0))
sketch10.addConstraint(Sketcher.Constraint("Horizontal", 2))
sketch10.addConstraint(Sketcher.Constraint("Vertical", 4))
sketch10.addConstraint(Sketcher.Constraint("Horizontal", 5))
sketch10.addConstraint(Sketcher.Constraint("Equal", 1, 3))
sketch10.addConstraint(Sketcher.Constraint("PointOnObject", 4, 2, -1))
sketch10.addConstraint(Sketcher.Constraint("Diameter", 6, Q("12.7 mm")))
sketch10.addConstraint(Sketcher.Constraint("Radius", 1, Q("34.5 mm")))
sketch10.addConstraint(Sketcher.Constraint("DistanceX", 2, 2, 2, 1, Q("1 mm")))
sketch10.addConstraint(Sketcher.Constraint("DistanceY", 0, 2, 0, 1, Q("65.5 mm")))
sketch10.addConstraint(Sketcher.Constraint("DistanceX", -1, 1, 6, 3, Q("90 mm")))
sketch10.addConstraint(Sketcher.Constraint("DistanceY", 6, 3, -1, 1, Q("65 mm")))
sketch10.addConstraint(Sketcher.Constraint("DistanceX", -1, 1, 0, 2, Q("125 mm")))
sketch10.setExpression("Constraints[12]", "Params.sketch10_diameter")
sketch10.setExpression("Constraints[13]", "Params.sketch10_radius")
sketch10.setExpression("Constraints[14]", "Params.sketch10_width")
sketch10.setExpression("Constraints[15]", "Params.sketch10_height")
pad8 = body.newObject("PartDesign::Pad", "Pad007")
pad8.Profile = sketch10
pad8.setExpression("Length", "Params.pad8_length")
pad8.Reversed = True

# Sketch on XY plane
sketch11 = body.newObject("Sketcher::SketchObject", "Sketch010")
sketch11.AttachmentSupport = (doc.getObject("XY_Plane"), [""])
sketch11.MapMode = "FlatFace"
sketch11.addGeometry(Part.LineSegment(Vector(-15, 85, 0), Vector(-15, 55, 0)), False)
sketch11.addGeometry(Part.LineSegment(Vector(-15, 55, 0), Vector(0.593074, 55, 0)), False)
sketch11.addGeometry(Part.ArcOfCircle(Part.Circle(Vector(86.5, 86.5, 0), Vector(0, 0, 1), 91.5), math.radians(-179.060683), math.radians(-159.86323)), False)
sketch11.addGeometry(Part.LineSegment(Vector(-4.987704, 85, 0), Vector(-15, 85, 0)), False)
sketch11.addConstraint(Sketcher.Constraint("Coincident", 0, 2, 1, 1))
sketch11.addConstraint(Sketcher.Constraint("Coincident", 1, 2, 2, 2))
sketch11.addConstraint(Sketcher.Constraint("Coincident", 2, 1, 3, 1))
sketch11.addConstraint(Sketcher.Constraint("Coincident", 3, 2, 0, 1))
sketch11.addConstraint(Sketcher.Constraint("Vertical", 0))
sketch11.addConstraint(Sketcher.Constraint("Horizontal", 1))
sketch11.addConstraint(Sketcher.Constraint("Horizontal", 3))
sketch11.addConstraint(Sketcher.Constraint("Radius", 2, Q("91.5 mm")))
sketch11.addConstraint(Sketcher.Constraint("DistanceY", 0, 2, 0, 1, Q("30 mm")))
sketch11.addConstraint(Sketcher.Constraint("DistanceX", 0, 2, -1, 1, Q("15 mm")))
sketch11.addConstraint(Sketcher.Constraint("DistanceY", -1, 1, 0, 2, Q("55 mm")))
sketch11.addConstraint(Sketcher.Constraint("DistanceX", -1, 1, 2, 3, Q("86.5 mm")))
sketch11.addConstraint(Sketcher.Constraint("DistanceY", -1, 1, 2, 3, Q("86.5 mm")))
sketch11.setExpression("Constraints[7]", "Params.sketch11_radius")
sketch11.setExpression("Constraints[8]", "Params.sketch11_height")
pad9 = body.newObject("PartDesign::Pad", "Pad008")
pad9.Profile = sketch11
pad9.setExpression("Length", "Params.pad9_length")

# Sketch on YZ plane
sketch12 = body.newObject("Sketcher::SketchObject", "Sketch011")
sketch12.AttachmentSupport = (doc.getObject("YZ_Plane"), [""])
sketch12.MapMode = "FlatFace"
sketch12.AttachmentOffset = App.Placement(Vector(0, 0, -4.987704), App.Rotation())
sketch12.addGeometry(Part.LineSegment(Vector(89.5, -100, 0), Vector(90.5, -100, 0)), False)
sketch12.addGeometry(Part.ArcOfCircle(Part.Circle(Vector(90.5, -65.5, 0), Vector(0, 0, 1), 34.5), math.radians(-90), math.radians(0)), False)
sketch12.addGeometry(Part.LineSegment(Vector(125, -65.5, 0), Vector(125, 0, 0)), False)
sketch12.addGeometry(Part.LineSegment(Vector(125, 0, 0), Vector(55, 0, 0)), False)
sketch12.addGeometry(Part.LineSegment(Vector(55, 0, 0), Vector(55, -65.5, 0)), False)
sketch12.addGeometry(Part.ArcOfCircle(Part.Circle(Vector(89.5, -65.5, 0), Vector(0, 0, 1), 34.5), math.radians(180), math.radians(270)), False)
sketch12.addGeometry(Part.Circle(Vector(90, -65, 0), Vector(0, 0, 1), 6.35), False)
sketch12.addConstraint(Sketcher.Constraint("Tangent", 0, 2, 1, 1))
sketch12.addConstraint(Sketcher.Constraint("Tangent", 1, 2, 2, 1))
sketch12.addConstraint(Sketcher.Constraint("Coincident", 2, 2, 3, 1))
sketch12.addConstraint(Sketcher.Constraint("Coincident", 3, 2, 4, 1))
sketch12.addConstraint(Sketcher.Constraint("Tangent", 4, 2, 5, 1))
sketch12.addConstraint(Sketcher.Constraint("Tangent", 5, 2, 0, 1))
sketch12.addConstraint(Sketcher.Constraint("Horizontal", 0))
sketch12.addConstraint(Sketcher.Constraint("Vertical", 2))
sketch12.addConstraint(Sketcher.Constraint("Horizontal", 3))
sketch12.addConstraint(Sketcher.Constraint("Vertical", 4))
sketch12.addConstraint(Sketcher.Constraint("Equal", 1, 5))
sketch12.addConstraint(Sketcher.Constraint("PointOnObject", 2, 2, -1))
sketch12.addConstraint(Sketcher.Constraint("Diameter", 6, Q("12.7 mm")))
sketch12.addConstraint(Sketcher.Constraint("Radius", 1, Q("34.5 mm")))
sketch12.addConstraint(Sketcher.Constraint("DistanceX", 0, 1, 0, 2, Q("1 mm")))
sketch12.addConstraint(Sketcher.Constraint("DistanceY", 2, 1, 2, 2, Q("65.5 mm")))
sketch12.addConstraint(Sketcher.Constraint("DistanceX", -1, 1, 6, 3, Q("90 mm")))
sketch12.addConstraint(Sketcher.Constraint("DistanceY", 6, 3, -1, 1, Q("65 mm")))
sketch12.addConstraint(Sketcher.Constraint("DistanceX", -1, 1, 1, 2, Q("125 mm")))
sketch12.setExpression("Constraints[12]", "Params.sketch12_diameter")
sketch12.setExpression("Constraints[13]", "Params.sketch12_radius")
sketch12.setExpression("Constraints[14]", "Params.sketch12_width")
sketch12.setExpression("Constraints[15]", "Params.sketch12_height")
pad10 = body.newObject("PartDesign::Pad", "Pad009")
pad10.Profile = sketch12
pad10.setExpression("Length", "Params.pad10_length")

# Sketch on YZ plane
sketch13 = body.newObject("Sketcher::SketchObject", "Sketch012")
sketch13.AttachmentSupport = (doc.getObject("YZ_Plane"), [""])
sketch13.MapMode = "FlatFace"
sketch13.AttachmentOffset = App.Placement(Vector(0, 0, 204.987704), App.Rotation())
sketch13.addGeometry(Part.LineSegment(Vector(90.5, -100, 0), Vector(89.5, -100, 0)), False)
sketch13.addGeometry(Part.ArcOfCircle(Part.Circle(Vector(89.5, -65.5, 0), Vector(0, 0, 1), 34.5), math.radians(180), math.radians(270)), False)
sketch13.addGeometry(Part.LineSegment(Vector(55, -65.5, 0), Vector(55, 0, 0)), False)
sketch13.addGeometry(Part.LineSegment(Vector(55, 0, 0), Vector(125, 0, 0)), False)
sketch13.addGeometry(Part.LineSegment(Vector(125, 0, 0), Vector(125, -65.5, 0)), False)
sketch13.addGeometry(Part.ArcOfCircle(Part.Circle(Vector(90.5, -65.5, 0), Vector(0, 0, 1), 34.5), math.radians(-90), math.radians(0)), False)
sketch13.addGeometry(Part.Circle(Vector(90, -65, 0), Vector(0, 0, 1), 6.35), False)
sketch13.addConstraint(Sketcher.Constraint("Tangent", 0, 2, 1, 2))
sketch13.addConstraint(Sketcher.Constraint("Tangent", 1, 1, 2, 1))
sketch13.addConstraint(Sketcher.Constraint("Coincident", 2, 2, 3, 1))
sketch13.addConstraint(Sketcher.Constraint("Coincident", 3, 2, 4, 1))
sketch13.addConstraint(Sketcher.Constraint("Tangent", 4, 2, 5, 2))
sketch13.addConstraint(Sketcher.Constraint("Tangent", 5, 1, 0, 1))
sketch13.addConstraint(Sketcher.Constraint("Horizontal", 0))
sketch13.addConstraint(Sketcher.Constraint("Vertical", 2))
sketch13.addConstraint(Sketcher.Constraint("Horizontal", 3))
sketch13.addConstraint(Sketcher.Constraint("Vertical", 4))
sketch13.addConstraint(Sketcher.Constraint("Equal", 1, 5))
sketch13.addConstraint(Sketcher.Constraint("PointOnObject", 2, 2, -1))
sketch13.addConstraint(Sketcher.Constraint("Diameter", 6, Q("12.7 mm")))
sketch13.addConstraint(Sketcher.Constraint("Radius", 1, Q("34.5 mm")))
sketch13.addConstraint(Sketcher.Constraint("DistanceX", 0, 2, 0, 1, Q("1 mm")))
sketch13.addConstraint(Sketcher.Constraint("DistanceY", 2, 1, 2, 2, Q("65.5 mm")))
sketch13.addConstraint(Sketcher.Constraint("DistanceX", -1, 1, 6, 3, Q("90 mm")))
sketch13.addConstraint(Sketcher.Constraint("DistanceY", 6, 3, -1, 1, Q("65 mm")))
sketch13.addConstraint(Sketcher.Constraint("DistanceX", -1, 1, 1, 1, Q("55 mm")))
sketch13.setExpression("Constraints[12]", "Params.sketch13_diameter")
sketch13.setExpression("Constraints[13]", "Params.sketch13_radius")
sketch13.setExpression("Constraints[14]", "Params.sketch13_width")
sketch13.setExpression("Constraints[15]", "Params.sketch13_height")
pad11 = body.newObject("PartDesign::Pad", "Pad010")
pad11.Profile = sketch13
pad11.setExpression("Length", "Params.pad11_length")
pad11.Reversed = True

# Sketch on XZ plane
sketch14 = body.newObject("Sketcher::SketchObject", "Sketch013")
sketch14.AttachmentSupport = (doc.getObject("XZ_Plane"), [""])
sketch14.MapMode = "FlatFace"
sketch14.AttachmentOffset = App.Placement(Vector(0, 0, 115), App.Rotation())
sketch14.addGeometry(Part.Circle(Vector(-9.993852, 20, 0), Vector(0, 0, 1), 2.38125), False)
sketch14.addGeometry(Part.Circle(Vector(-9.993852, 140, 0), Vector(0, 0, 1), 2.38125), False)
sketch14.addGeometry(Part.Circle(Vector(209.993852, 140, 0), Vector(0, 0, 1), 2.38125), False)
sketch14.addGeometry(Part.Circle(Vector(209.993852, 20, 0), Vector(0, 0, 1), 2.38125), False)
sketch14.addConstraint(Sketcher.Constraint("Equal", 0, 1))
sketch14.addConstraint(Sketcher.Constraint("Equal", 1, 2))
sketch14.addConstraint(Sketcher.Constraint("Equal", 2, 3))
sketch14.addConstraint(Sketcher.Constraint("Horizontal", 1, 3, 2, 3))
sketch14.addConstraint(Sketcher.Constraint("Horizontal", 0, 3, 3, 3))
sketch14.addConstraint(Sketcher.Constraint("Vertical", 0, 3, 1, 3))
sketch14.addConstraint(Sketcher.Constraint("Vertical", 2, 3, 3, 3))
sketch14.addConstraint(Sketcher.Constraint("DistanceY", -1, 1, 0, 3, Q("20 mm")))
sketch14.addConstraint(Sketcher.Constraint("DistanceY", -1, 1, 1, 3, Q("140 mm")))
sketch14.addConstraint(Sketcher.Constraint("Diameter", 0, Q("4.7625 mm")))
sketch14.addConstraint(Sketcher.Constraint("DistanceX", 0, 3, -1, 1, Q("9.993852 mm")))
sketch14.addConstraint(Sketcher.Constraint("DistanceX", -1, 1, 2, 3, Q("209.993852 mm")))
pocket3 = body.newObject("PartDesign::Pocket", "Pocket002")
pocket3.Profile = sketch14
pocket3.setExpression("Length", "Params.pocket3_length")

doc.recompute()
